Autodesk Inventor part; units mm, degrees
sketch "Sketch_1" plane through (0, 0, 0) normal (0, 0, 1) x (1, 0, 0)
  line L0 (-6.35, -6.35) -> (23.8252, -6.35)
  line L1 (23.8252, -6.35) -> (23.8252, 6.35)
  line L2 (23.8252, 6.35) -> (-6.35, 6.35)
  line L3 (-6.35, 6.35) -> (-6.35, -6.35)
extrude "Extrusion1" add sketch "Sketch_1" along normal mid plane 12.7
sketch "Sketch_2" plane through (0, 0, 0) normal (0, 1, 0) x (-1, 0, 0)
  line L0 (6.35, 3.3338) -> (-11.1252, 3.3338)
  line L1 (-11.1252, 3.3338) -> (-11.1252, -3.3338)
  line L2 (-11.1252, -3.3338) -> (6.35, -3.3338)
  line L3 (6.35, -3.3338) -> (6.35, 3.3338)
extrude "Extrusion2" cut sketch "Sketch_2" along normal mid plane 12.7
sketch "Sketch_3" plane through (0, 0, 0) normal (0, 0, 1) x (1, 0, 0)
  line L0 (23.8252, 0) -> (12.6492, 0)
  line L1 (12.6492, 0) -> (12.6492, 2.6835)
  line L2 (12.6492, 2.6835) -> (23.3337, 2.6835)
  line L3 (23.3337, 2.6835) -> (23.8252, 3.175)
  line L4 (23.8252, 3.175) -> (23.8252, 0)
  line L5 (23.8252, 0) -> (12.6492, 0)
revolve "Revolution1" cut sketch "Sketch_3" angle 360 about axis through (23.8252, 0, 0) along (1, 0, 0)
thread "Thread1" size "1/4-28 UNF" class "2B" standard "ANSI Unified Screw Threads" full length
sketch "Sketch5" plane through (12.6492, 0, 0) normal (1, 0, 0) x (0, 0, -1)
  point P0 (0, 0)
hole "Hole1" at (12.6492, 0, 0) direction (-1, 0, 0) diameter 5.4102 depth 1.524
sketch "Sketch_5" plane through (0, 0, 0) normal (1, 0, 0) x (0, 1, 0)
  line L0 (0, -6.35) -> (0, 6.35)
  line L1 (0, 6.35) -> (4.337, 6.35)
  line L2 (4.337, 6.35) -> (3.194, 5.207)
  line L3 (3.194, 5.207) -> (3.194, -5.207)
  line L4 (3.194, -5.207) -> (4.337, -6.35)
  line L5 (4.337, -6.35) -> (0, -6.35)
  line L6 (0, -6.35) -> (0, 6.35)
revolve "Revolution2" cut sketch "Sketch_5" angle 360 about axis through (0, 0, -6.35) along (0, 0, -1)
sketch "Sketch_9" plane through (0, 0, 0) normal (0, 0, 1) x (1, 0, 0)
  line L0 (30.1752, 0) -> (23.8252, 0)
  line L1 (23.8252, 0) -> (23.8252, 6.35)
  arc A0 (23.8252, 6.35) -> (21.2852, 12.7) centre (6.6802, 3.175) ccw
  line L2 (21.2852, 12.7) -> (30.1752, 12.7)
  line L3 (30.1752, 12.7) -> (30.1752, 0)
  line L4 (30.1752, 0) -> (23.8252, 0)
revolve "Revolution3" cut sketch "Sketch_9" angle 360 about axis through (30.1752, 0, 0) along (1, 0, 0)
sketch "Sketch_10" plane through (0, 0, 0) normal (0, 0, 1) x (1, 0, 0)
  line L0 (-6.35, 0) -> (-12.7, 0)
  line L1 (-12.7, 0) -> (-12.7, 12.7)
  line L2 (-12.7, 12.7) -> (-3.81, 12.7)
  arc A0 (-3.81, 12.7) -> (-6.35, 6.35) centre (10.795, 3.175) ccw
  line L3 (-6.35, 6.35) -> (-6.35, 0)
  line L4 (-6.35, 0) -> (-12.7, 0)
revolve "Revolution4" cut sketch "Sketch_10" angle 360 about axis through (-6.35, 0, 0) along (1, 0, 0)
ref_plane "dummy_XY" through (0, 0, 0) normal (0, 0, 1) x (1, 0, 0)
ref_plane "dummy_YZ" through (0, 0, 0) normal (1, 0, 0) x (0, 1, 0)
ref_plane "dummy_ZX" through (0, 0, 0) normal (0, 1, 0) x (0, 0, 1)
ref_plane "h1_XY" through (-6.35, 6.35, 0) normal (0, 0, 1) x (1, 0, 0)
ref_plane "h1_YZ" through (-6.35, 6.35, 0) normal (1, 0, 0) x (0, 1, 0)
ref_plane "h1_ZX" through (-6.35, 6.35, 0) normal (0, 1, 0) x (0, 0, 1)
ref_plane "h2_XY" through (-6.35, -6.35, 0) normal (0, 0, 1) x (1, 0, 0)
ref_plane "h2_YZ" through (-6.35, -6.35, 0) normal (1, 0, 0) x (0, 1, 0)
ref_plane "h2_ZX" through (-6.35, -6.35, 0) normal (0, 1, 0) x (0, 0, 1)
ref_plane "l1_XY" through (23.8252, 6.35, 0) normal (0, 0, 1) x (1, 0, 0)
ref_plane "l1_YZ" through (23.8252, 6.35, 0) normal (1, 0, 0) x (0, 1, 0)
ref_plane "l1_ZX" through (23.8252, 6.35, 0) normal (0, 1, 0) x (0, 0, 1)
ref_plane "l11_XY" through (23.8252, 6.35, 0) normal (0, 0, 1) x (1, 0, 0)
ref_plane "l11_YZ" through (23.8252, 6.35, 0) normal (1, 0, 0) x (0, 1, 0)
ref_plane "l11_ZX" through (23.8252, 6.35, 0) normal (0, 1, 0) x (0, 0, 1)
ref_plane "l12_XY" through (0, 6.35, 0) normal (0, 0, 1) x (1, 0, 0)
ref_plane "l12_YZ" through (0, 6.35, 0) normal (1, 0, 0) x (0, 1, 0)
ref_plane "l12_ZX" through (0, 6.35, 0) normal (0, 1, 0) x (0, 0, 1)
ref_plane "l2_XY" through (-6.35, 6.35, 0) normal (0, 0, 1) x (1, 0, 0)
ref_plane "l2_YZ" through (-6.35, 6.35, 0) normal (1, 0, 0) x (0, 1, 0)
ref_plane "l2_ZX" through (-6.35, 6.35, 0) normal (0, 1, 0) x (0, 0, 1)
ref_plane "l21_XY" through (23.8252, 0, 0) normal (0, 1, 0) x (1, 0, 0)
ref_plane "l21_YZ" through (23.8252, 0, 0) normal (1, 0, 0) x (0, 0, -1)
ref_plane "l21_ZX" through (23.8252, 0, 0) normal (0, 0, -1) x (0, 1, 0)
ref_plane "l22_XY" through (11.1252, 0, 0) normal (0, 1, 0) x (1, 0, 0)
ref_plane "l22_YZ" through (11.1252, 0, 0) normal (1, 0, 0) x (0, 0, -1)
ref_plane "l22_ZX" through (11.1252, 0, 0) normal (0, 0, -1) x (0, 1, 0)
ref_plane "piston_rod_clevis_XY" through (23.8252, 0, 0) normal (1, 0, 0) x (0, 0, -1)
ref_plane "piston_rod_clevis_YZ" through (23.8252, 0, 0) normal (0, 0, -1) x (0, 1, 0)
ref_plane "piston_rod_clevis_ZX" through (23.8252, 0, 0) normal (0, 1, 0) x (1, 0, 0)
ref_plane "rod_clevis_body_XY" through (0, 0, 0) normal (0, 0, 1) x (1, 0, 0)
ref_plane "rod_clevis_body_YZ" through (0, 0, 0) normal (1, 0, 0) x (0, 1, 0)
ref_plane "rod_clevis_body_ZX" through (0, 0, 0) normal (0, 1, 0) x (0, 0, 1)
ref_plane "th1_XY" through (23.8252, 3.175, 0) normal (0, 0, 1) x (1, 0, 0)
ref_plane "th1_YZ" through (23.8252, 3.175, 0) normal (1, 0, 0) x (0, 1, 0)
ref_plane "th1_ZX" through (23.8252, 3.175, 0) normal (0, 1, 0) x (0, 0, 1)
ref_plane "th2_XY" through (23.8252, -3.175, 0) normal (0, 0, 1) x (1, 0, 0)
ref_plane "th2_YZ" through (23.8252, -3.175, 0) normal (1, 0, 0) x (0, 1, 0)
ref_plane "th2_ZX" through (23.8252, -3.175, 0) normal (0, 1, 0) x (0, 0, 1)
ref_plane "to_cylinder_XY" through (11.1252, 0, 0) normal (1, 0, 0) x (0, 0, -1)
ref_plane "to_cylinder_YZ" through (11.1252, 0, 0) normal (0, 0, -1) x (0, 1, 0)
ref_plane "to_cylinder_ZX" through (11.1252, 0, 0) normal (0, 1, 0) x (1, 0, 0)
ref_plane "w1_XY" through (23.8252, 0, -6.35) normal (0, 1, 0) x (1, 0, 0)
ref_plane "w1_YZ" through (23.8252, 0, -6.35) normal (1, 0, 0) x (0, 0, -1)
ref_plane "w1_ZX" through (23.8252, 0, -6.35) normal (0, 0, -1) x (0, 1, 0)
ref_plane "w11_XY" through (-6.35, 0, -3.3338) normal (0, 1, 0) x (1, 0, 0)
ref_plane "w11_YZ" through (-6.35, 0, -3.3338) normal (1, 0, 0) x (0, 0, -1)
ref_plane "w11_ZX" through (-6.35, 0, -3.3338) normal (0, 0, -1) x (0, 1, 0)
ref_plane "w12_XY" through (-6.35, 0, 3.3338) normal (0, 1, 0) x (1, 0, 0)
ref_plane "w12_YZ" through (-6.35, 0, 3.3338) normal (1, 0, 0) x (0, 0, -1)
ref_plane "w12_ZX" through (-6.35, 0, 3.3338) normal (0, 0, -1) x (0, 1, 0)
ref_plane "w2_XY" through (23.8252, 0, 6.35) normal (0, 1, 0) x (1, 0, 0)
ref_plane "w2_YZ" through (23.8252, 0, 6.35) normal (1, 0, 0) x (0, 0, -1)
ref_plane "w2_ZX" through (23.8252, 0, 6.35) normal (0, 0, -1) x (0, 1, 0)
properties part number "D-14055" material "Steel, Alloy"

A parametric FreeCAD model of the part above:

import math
import FreeCAD as App
import Part
import Sketcher

V = App.Vector
Q = App.Units.Quantity

doc = App.newDocument("Part")
body = doc.addObject("PartDesign::Body", "Body")

# Sketch on XY plane
sketch1 = body.newObject("Sketcher::SketchObject", "Sketch")
sketch1.AttachmentSupport = (doc.getObject("XY_Plane"), [""])
sketch1.MapMode = "FlatFace"
sketch1.addGeometry(Part.LineSegment(V(-6, 6, 0), V(-6, -6, 0)), False)
sketch1.addGeometry(Part.LineSegment(V(-6, -6, 0), V(24, -6, 0)), False)
sketch1.addGeometry(Part.LineSegment(V(24, -6, 0), V(24, 6, 0)), False)
sketch1.addGeometry(Part.LineSegment(V(24, 6, 0), V(-6, 6, 0)), False)
sketch1.addConstraint(Sketcher.Constraint("Coincident", 0, 2, 1, 1))
sketch1.addConstraint(Sketcher.Constraint("Coincident", 1, 2, 2, 1))
sketch1.addConstraint(Sketcher.Constraint("Coincident", 2, 2, 3, 1))
sketch1.addConstraint(Sketcher.Constraint("Coincident", 3, 2, 0, 1))
sketch1.addConstraint(Sketcher.Constraint("Vertical", 0))
sketch1.addConstraint(Sketcher.Constraint("Horizontal", 1))
sketch1.addConstraint(Sketcher.Constraint("Vertical", 2))
sketch1.addConstraint(Sketcher.Constraint("Horizontal", 3))
sketch1.addConstraint(Sketcher.Constraint("DistanceY", 0, 2, 0, 1, Q("0.5 in")))
sketch1.addConstraint(Sketcher.Constraint("DistanceX", 1, 1, 1, 2, Q("1.188 in")))
sketch1.addConstraint(Sketcher.Constraint("DistanceX", 0, 2, -1, 1, Q("0.25 in")))
sketch1.addConstraint(Sketcher.Constraint("DistanceY", 0, 2, -1, 1, Q("0.25 in")))
pad1 = body.newObject("PartDesign::Pad", "Pad")
pad1.Profile = sketch1
pad1.Length = Q("0.5 in")
pad1.Midplane = True

# Sketch on XZ plane
sketch2 = body.newObject("Sketcher::SketchObject", "Sketch001")
sketch2.AttachmentSupport = (doc.getObject("XZ_Plane"), [""])
sketch2.MapMode = "FlatFace"
sketch2.addGeometry(Part.LineSegment(V(-6, -3, 0), V(-6, 3, 0)), False)
sketch2.addGeometry(Part.LineSegment(V(-6, 3, 0), V(11, 3, 0)), False)
sketch2.addGeometry(Part.LineSegment(V(11, 3, 0), V(11, -3, 0)), False)
sketch2.addGeometry(Part.LineSegment(V(11, -3, 0), V(-6, -3, 0)), False)
sketch2.addConstraint(Sketcher.Constraint("Coincident", 0, 2, 1, 1))
sketch2.addConstraint(Sketcher.Constraint("Coincident", 1, 2, 2, 1))
sketch2.addConstraint(Sketcher.Constraint("Coincident", 2, 2, 3, 1))
sketch2.addConstraint(Sketcher.Constraint("Coincident", 3, 2, 0, 1))
sketch2.addConstraint(Sketcher.Constraint("Vertical", 0))
sketch2.addConstraint(Sketcher.Constraint("Horizontal", 1))
sketch2.addConstraint(Sketcher.Constraint("Vertical", 2))
sketch2.addConstraint(Sketcher.Constraint("Horizontal", 3))
sketch2.addConstraint(Sketcher.Constraint("DistanceX", 1, 1, 1, 2, Q("0.688 in")))
sketch2.addConstraint(Sketcher.Constraint("DistanceX", 0, 2, -1, 1, Q("0.25 in")))
sketch2.addConstraint(Sketcher.Constraint("DistanceY", 0, 1, 0, 2, Q("0.2625 in")))
sketch2.addConstraint(Sketcher.Constraint("DistanceY", -1, 1, 0, 2, 3.3338))
pocket1 = body.newObject("PartDesign::Pocket", "Pocket")
pocket1.Profile = sketch2
pocket1.Length = Q("0.5 in")
pocket1.Midplane = True

# Sketch on XY plane
sketch3 = body.newObject("Sketcher::SketchObject", "Sketch002")
sketch3.AttachmentSupport = (doc.getObject("XY_Plane"), [""])
sketch3.MapMode = "FlatFace"
sketch3.addGeometry(Part.LineSegment(V(12.6, 0, 0), V(23.8, 0, 0)), False)
sketch3.addGeometry(Part.LineSegment(V(23.8, 0, 0), V(23.8, 3.2, 0)), False)
sketch3.addGeometry(Part.LineSegment(V(23.8, 3.2, 0), V(23.3, 2.7, 0)), False)
sketch3.addGeometry(Part.LineSegment(V(23.3, 2.7, 0), V(12.6, 2.7, 0)), False)
sketch3.addGeometry(Part.LineSegment(V(12.6, 2.7, 0), V(12.6, 0, 0)), False)
sketch3.addConstraint(Sketcher.Constraint("Coincident", 0, 2, 1, 1))
sketch3.addConstraint(Sketcher.Constraint("Coincident", 1, 2, 2, 1))
sketch3.addConstraint(Sketcher.Constraint("Coincident", 2, 2, 3, 1))
sketch3.addConstraint(Sketcher.Constraint("Coincident", 3, 2, 4, 1))
sketch3.addConstraint(Sketcher.Constraint("Coincident", 4, 2, 0, 1))
sketch3.addConstraint(Sketcher.Constraint("Horizontal", 0))
sketch3.addConstraint(Sketcher.Constraint("Vertical", 1))
sketch3.addConstraint(Sketcher.Constraint("Horizontal", 3))
sketch3.addConstraint(Sketcher.Constraint("Vertical", 4))
sketch3.addConstraint(Sketcher.Constraint("PointOnObject", 0, 2, -1))
sketch3.addConstraint(Sketcher.Constraint("Angle", 2, Q("-135 deg")))
sketch3.addConstraint(Sketcher.Constraint("DistanceX", 0, 1, 0, 2, Q("0.44 in")))
sketch3.addConstraint(Sketcher.Constraint("DistanceY", 1, 1, 1, 2, Q("0.125 in")))
sketch3.addConstraint(Sketcher.Constraint("DistanceX", -1, 1, 0, 2, Q("0.938 in")))
sketch3.addConstraint(Sketcher.Constraint("DistanceX", 3, 2, 3, 1, 10.6845))
groove = body.newObject("PartDesign::Groove", "Groove")
groove.Profile = sketch3
groove.ReferenceAxis = (sketch3, ["H_Axis"])
groove.Angle = 360

# Sketch on YZ plane
sketch4 = body.newObject("Sketcher::SketchObject", "Sketch003")
sketch4.AttachmentSupport = (doc.getObject("YZ_Plane"), [""])
sketch4.MapMode = "FlatFace"
sketch4.AttachmentOffset = App.Placement(V(0, 0, 0.498 * 25.4), App.Rotation())
sketch4.addGeometry(Part.Circle(V(0, 0, 0), V(0, 0, 1), 2.7), False)
sketch4.addConstraint(Sketcher.Constraint("Coincident", 0, 3, -1, 1))
sketch4.addConstraint(Sketcher.Constraint("Diameter", 0, Q("0.213 in")))
doc.recompute()
hole = body.newObject("PartDesign::Hole", "Hole")
hole.Profile = sketch4
hole.ThreadType = "None"
hole.Diameter = Q("0.213 in")
hole.DepthType = "Dimension"
hole.Depth = Q("0.06 in")
hole.DrillPoint = "Flat"

# Sketch on YZ plane
sketch5 = body.newObject("Sketcher::SketchObject", "Sketch004")
sketch5.AttachmentSupport = (doc.getObject("YZ_Plane"), [""])
sketch5.MapMode = "FlatFace"
sketch5.addGeometry(Part.LineSegment(V(0, 6.3, 0), V(0, -6.3, 0)), False)
sketch5.addGeometry(Part.LineSegment(V(0, -6.3, 0), V(4.3, -6.3, 0)), False)
sketch5.addGeometry(Part.LineSegment(V(4.3, -6.3, 0), V(3.2, -5.2, 0)), False)
sketch5.addGeometry(Part.LineSegment(V(3.2, -5.2, 0), V(3.2, 5.2, 0)), False)
sketch5.addGeometry(Part.LineSegment(V(3.2, 5.2, 0), V(4.3, 6.3, 0)), False)
sketch5.addGeometry(Part.LineSegment(V(4.3, 6.3, 0), V(0, 6.3, 0)), False)
sketch5.addConstraint(Sketcher.Constraint("Coincident", 0, 2, 1, 1))
sketch5.addConstraint(Sketcher.Constraint("Coincident", 1, 2, 2, 1))
sketch5.addConstraint(Sketcher.Constraint("Coincident", 2, 2, 3, 1))
sketch5.addConstraint(Sketcher.Constraint("Coincident", 3, 2, 4, 1))
sketch5.addConstraint(Sketcher.Constraint("Coincident", 4, 2, 5, 1))
sketch5.addConstraint(Sketcher.Constraint("Coincident", 5, 2, 0, 1))
sketch5.addConstraint(Sketcher.Constraint("Vertical", 0))
sketch5.addConstraint(Sketcher.Constraint("Horizontal", 1))
sketch5.addConstraint(Sketcher.Constraint("Vertical", 3))
sketch5.addConstraint(Sketcher.Constraint("Horizontal", 5))
sketch5.addConstraint(Sketcher.Constraint("Symmetric", 0, 2, 5, 2, -1, 1))
sketch5.addConstraint(Sketcher.Constraint("Perpendicular", 2, 4))
sketch5.addConstraint(Sketcher.Constraint("Vertical", 1, 2, 4, 2))
sketch5.addConstraint(Sketcher.Constraint("Equal", 2, 4))
sketch5.addConstraint(Sketcher.Constraint("DistanceY", 0, 2, 0, 1, Q("0.5 in")))
sketch5.addConstraint(Sketcher.Constraint("DistanceY", 3, 1, 3, 2, Q("0.41 in")))
sketch5.addConstraint(Sketcher.Constraint("DistanceX", 1, 1, 1, 2, 4.337))
groove2 = body.newObject("PartDesign::Groove", "Groove001")
groove2.Profile = sketch5
groove2.ReferenceAxis = (sketch5, ["V_Axis"])
groove2.Angle = 360

# Sketch on XY plane
sketch6 = body.newObject("Sketcher::SketchObject", "Sketch005")
sketch6.AttachmentSupport = (doc.getObject("XY_Plane"), [""])
sketch6.MapMode = "FlatFace"
sketch6.addGeometry(Part.LineSegment(V(24, 0, 0), V(30, 0, 0)), False)
sketch6.addGeometry(Part.LineSegment(V(30, 0, 0), V(30, 13, 0)), False)
sketch6.addGeometry(Part.LineSegment(V(30, 13, 0), V(21, 13, 0)), False)
sketch6.addGeometry(Part.ArcOfCircle(Part.Circle(V(7, 3, 0), V(0, 0, 1), 17), math.radians(10), math.radians(33)), False)
sketch6.addGeometry(Part.LineSegment(V(24, 6, 0), V(24, 0, 0)), False)
sketch6.addConstraint(Sketcher.Constraint("Coincident", 0, 2, 1, 1))
sketch6.addConstraint(Sketcher.Constraint("Coincident", 1, 2, 2, 1))
sketch6.addConstraint(Sketcher.Constraint("Coincident", 2, 2, 3, 2))
sketch6.addConstraint(Sketcher.Constraint("Coincident", 3, 1, 4, 1))
sketch6.addConstraint(Sketcher.Constraint("Coincident", 4, 2, 0, 1))
sketch6.addConstraint(Sketcher.Constraint("Horizontal", 0))
sketch6.addConstraint(Sketcher.Constraint("Vertical", 1))
sketch6.addConstraint(Sketcher.Constraint("Horizontal", 2))
sketch6.addConstraint(Sketcher.Constraint("Vertical", 4))
sketch6.addConstraint(Sketcher.Constraint("PointOnObject", 0, 2, -1))
sketch6.addConstraint(Sketcher.Constraint("Equal", 0, 4))
sketch6.addConstraint(Sketcher.Constraint("DistanceY", 1, 1, 1, 2, Q("0.5 in")))
sketch6.addConstraint(Sketcher.Constraint("DistanceX", 0, 1, 0, 2, Q("0.25 in")))
sketch6.addConstraint(Sketcher.Constraint("DistanceX", 2, 2, 2, 1, Q("0.35 in")))
sketch6.addConstraint(Sketcher.Constraint("Radius", 3, 17.4365))
sketch6.addConstraint(Sketcher.Constraint("DistanceX", -1, 1, 3, 3, Q("0.263 in")))
groove3 = body.newObject("PartDesign::Groove", "Groove002")
groove3.Profile = sketch6
groove3.ReferenceAxis = (sketch6, ["H_Axis"])
groove3.Angle = 360

# Sketch on XY plane
sketch7 = body.newObject("Sketcher::SketchObject", "Sketch006")
sketch7.AttachmentSupport = (doc.getObject("XY_Plane"), [""])
sketch7.MapMode = "FlatFace"
sketch7.addGeometry(Part.LineSegment(V(-13, 0, 0), V(-6, 0, 0)), False)
sketch7.addGeometry(Part.LineSegment(V(-6, 0, 0), V(-6, 6, 0)), False)
sketch7.addGeometry(Part.ArcOfCircle(Part.Circle(V(11, 3, 0), V(0, 0, 1), 17), math.radians(147), math.radians(170)), False)
sketch7.addGeometry(Part.LineSegment(V(-4, 13, 0), V(-13, 13, 0)), False)
sketch7.addGeometry(Part.LineSegment(V(-13, 13, 0), V(-13, 0, 0)), False)
sketch7.addConstraint(Sketcher.Constraint("Coincident", 0, 2, 1, 1))
sketch7.addConstraint(Sketcher.Constraint("Coincident", 1, 2, 2, 2))
sketch7.addConstraint(Sketcher.Constraint("Coincident", 2, 1, 3, 1))
sketch7.addConstraint(Sketcher.Constraint("Coincident", 3, 2, 4, 1))
sketch7.addConstraint(Sketcher.Constraint("Coincident", 4, 2, 0, 1))
sketch7.addConstraint(Sketcher.Constraint("Horizontal", 0))
sketch7.addConstraint(Sketcher.Constraint("Vertical", 1))
sketch7.addConstraint(Sketcher.Constraint("Horizontal", 3))
sketch7.addConstraint(Sketcher.Constraint("Vertical", 4))
sketch7.addConstraint(Sketcher.Constraint("PointOnObject", 0, 2, -1))
sketch7.addConstraint(Sketcher.Constraint("Equal", 0, 1))
sketch7.addConstraint(Sketcher.Constraint("DistanceY", 4, 2, 4, 1, Q("0.5 in")))
sketch7.addConstraint(Sketcher.Constraint("DistanceX", 0, 1, 0, 2, Q("0.25 in")))
sketch7.addConstraint(Sketcher.Constraint("DistanceX", 3, 2, 3, 1, Q("0.35 in")))
sketch7.addConstraint(Sketcher.Constraint("DistanceX", 3, 2, -1, 1, Q("0.5 in")))
sketch7.addConstraint(Sketcher.Constraint("Radius", 2, 17.4365))
groove4 = body.newObject("PartDesign::Groove", "Groove003")
groove4.Profile = sketch7
groove4.ReferenceAxis = (sketch7, ["H_Axis"])
groove4.Angle = 360

doc.recompute()
